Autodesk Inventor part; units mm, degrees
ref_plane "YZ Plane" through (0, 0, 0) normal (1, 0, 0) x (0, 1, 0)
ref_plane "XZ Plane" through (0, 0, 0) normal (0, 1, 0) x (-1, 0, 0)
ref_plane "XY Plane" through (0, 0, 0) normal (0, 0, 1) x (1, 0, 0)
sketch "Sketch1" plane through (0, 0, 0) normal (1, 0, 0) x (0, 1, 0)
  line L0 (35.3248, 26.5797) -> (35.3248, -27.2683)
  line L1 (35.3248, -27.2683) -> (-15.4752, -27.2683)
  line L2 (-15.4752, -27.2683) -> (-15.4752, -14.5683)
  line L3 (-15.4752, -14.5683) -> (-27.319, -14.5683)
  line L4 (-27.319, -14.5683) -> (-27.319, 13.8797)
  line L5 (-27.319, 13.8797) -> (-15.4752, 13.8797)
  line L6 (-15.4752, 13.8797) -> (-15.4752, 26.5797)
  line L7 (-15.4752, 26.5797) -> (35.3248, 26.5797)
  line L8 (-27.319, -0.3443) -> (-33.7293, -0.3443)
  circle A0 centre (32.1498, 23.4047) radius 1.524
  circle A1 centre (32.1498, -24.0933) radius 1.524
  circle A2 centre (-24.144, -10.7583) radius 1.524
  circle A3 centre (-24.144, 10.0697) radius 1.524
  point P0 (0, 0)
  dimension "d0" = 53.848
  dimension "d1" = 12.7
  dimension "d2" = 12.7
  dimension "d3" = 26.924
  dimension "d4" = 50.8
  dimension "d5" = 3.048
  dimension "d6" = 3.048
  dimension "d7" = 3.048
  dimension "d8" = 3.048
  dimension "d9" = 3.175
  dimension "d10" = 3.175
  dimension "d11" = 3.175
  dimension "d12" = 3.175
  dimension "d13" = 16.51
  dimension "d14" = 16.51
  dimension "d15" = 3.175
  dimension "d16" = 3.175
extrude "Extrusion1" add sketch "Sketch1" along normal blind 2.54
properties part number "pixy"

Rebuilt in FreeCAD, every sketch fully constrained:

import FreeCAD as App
import Part
import Sketcher
from FreeCAD import Vector
Q = App.Units.Quantity

doc = App.newDocument("Part")
body = doc.addObject("PartDesign::Body", "Body")

# Sketch on YZ plane
sketch1 = doc.addObject("Sketcher::SketchObject", "Sketch")
body.addObject(sketch1)
sketch1.AttachmentSupport = (doc.YZ_Plane, [""])
sketch1.MapMode = "FlatFace"
sketch1.addGeometry([
    Part.LineSegment(Vector(35.3, -27.3, 0), Vector(35.3, 26.6, 0)),  # 0
    Part.LineSegment(Vector(35.3, 26.6, 0), Vector(-15.5, 26.6, 0)),  # 1
    Part.LineSegment(Vector(-15.5, 26.6, 0), Vector(-15.5, 13.9, 0)),  # 2
    Part.LineSegment(Vector(-15.5, 13.9, 0), Vector(-27.3, 13.9, 0)),  # 3
    Part.LineSegment(Vector(-27.3, 13.9, 0), Vector(-27.3, -14.6, 0)),  # 4
    Part.LineSegment(Vector(-27.3, -14.6, 0), Vector(-15.5, -14.6, 0)),  # 5
    Part.LineSegment(Vector(-15.5, -14.6, 0), Vector(-15.5, -27.3, 0)),  # 6
    Part.LineSegment(Vector(-15.5, -27.3, 0), Vector(35.3, -27.3, 0)),  # 7
    Part.Circle(Vector(-24.1, -10.8, 0), Vector(0, 0, 1), 1.5),  # 8
    Part.Circle(Vector(32.1, -24.1, 0), Vector(0, 0, 1), 1.5),  # 9
    Part.Circle(Vector(-24.1, 10.1, 0), Vector(0, 0, 1), 1.5),  # 10
    Part.Circle(Vector(32.1, 23.4, 0), Vector(0, 0, 1), 1.5),  # 11
], False)
sketch1.addConstraint([
    Sketcher.Constraint("Coincident", 0, 2, 1, 1),
    Sketcher.Constraint("Coincident", 1, 2, 2, 1),
    Sketcher.Constraint("Coincident", 2, 2, 3, 1),
    Sketcher.Constraint("Coincident", 3, 2, 4, 1),
    Sketcher.Constraint("Coincident", 4, 2, 5, 1),
    Sketcher.Constraint("Coincident", 5, 2, 6, 1),
    Sketcher.Constraint("Coincident", 6, 2, 7, 1),
    Sketcher.Constraint("Coincident", 7, 2, 0, 1),
    Sketcher.Constraint("Vertical", 0),
    Sketcher.Constraint("Horizontal", 1),
    Sketcher.Constraint("Vertical", 2),
    Sketcher.Constraint("Horizontal", 3),
    Sketcher.Constraint("Vertical", 4),
    Sketcher.Constraint("Horizontal", 5),
    Sketcher.Constraint("Vertical", 6),
    Sketcher.Constraint("Horizontal", 7),
    Sketcher.Constraint("Equal", 8, 9),
    Sketcher.Constraint("Equal", 9, 10),
    Sketcher.Constraint("Equal", 10, 11),
    Sketcher.Constraint("Vertical", 8, 3, 10, 3),
    Sketcher.Constraint("Vertical", 9, 3, 11, 3),
    Sketcher.Constraint("Vertical", 2, 2, 5, 2),
    Sketcher.Constraint("Equal", 2, 6),
    Sketcher.Constraint("Diameter", 8, Q("0.12 in")),
    Sketcher.Constraint("DistanceX", 1, 2, 1, 1, Q("2 in")),
    Sketcher.Constraint("DistanceY", 2, 2, 2, 1, Q("0.5 in")),
    Sketcher.Constraint("DistanceY", 0, 1, 0, 2, Q("2.12 in")),
    Sketcher.Constraint("DistanceY", 10, 3, 0, 2, Q("0.65 in")),
    Sketcher.Constraint("DistanceY", 6, 2, 8, 3, Q("0.65 in")),
    Sketcher.Constraint("DistanceX", 11, 3, 0, 2, Q("0.125 in")),
    Sketcher.Constraint("DistanceY", 11, 3, 0, 2, Q("0.125 in")),
    Sketcher.Constraint("DistanceX", 3, 2, 10, 3, Q("0.125 in")),
    Sketcher.Constraint("DistanceY", 7, 2, 9, 3, Q("0.125 in")),
    Sketcher.Constraint("DistanceX", 3, 2, 3, 1, Q("0.4663 in")),
    Sketcher.Constraint("DistanceX", 8, 3, -1, 1, Q("24.144 mm")),
    Sketcher.Constraint("DistanceY", 8, 3, -1, 1, Q("10.7583 mm")),
])
pad1 = doc.addObject("PartDesign::Pad", "Pad")
body.addObject(pad1)
pad1.Profile = sketch1
pad1.Length = Q("0.1 in")

doc.recompute()
